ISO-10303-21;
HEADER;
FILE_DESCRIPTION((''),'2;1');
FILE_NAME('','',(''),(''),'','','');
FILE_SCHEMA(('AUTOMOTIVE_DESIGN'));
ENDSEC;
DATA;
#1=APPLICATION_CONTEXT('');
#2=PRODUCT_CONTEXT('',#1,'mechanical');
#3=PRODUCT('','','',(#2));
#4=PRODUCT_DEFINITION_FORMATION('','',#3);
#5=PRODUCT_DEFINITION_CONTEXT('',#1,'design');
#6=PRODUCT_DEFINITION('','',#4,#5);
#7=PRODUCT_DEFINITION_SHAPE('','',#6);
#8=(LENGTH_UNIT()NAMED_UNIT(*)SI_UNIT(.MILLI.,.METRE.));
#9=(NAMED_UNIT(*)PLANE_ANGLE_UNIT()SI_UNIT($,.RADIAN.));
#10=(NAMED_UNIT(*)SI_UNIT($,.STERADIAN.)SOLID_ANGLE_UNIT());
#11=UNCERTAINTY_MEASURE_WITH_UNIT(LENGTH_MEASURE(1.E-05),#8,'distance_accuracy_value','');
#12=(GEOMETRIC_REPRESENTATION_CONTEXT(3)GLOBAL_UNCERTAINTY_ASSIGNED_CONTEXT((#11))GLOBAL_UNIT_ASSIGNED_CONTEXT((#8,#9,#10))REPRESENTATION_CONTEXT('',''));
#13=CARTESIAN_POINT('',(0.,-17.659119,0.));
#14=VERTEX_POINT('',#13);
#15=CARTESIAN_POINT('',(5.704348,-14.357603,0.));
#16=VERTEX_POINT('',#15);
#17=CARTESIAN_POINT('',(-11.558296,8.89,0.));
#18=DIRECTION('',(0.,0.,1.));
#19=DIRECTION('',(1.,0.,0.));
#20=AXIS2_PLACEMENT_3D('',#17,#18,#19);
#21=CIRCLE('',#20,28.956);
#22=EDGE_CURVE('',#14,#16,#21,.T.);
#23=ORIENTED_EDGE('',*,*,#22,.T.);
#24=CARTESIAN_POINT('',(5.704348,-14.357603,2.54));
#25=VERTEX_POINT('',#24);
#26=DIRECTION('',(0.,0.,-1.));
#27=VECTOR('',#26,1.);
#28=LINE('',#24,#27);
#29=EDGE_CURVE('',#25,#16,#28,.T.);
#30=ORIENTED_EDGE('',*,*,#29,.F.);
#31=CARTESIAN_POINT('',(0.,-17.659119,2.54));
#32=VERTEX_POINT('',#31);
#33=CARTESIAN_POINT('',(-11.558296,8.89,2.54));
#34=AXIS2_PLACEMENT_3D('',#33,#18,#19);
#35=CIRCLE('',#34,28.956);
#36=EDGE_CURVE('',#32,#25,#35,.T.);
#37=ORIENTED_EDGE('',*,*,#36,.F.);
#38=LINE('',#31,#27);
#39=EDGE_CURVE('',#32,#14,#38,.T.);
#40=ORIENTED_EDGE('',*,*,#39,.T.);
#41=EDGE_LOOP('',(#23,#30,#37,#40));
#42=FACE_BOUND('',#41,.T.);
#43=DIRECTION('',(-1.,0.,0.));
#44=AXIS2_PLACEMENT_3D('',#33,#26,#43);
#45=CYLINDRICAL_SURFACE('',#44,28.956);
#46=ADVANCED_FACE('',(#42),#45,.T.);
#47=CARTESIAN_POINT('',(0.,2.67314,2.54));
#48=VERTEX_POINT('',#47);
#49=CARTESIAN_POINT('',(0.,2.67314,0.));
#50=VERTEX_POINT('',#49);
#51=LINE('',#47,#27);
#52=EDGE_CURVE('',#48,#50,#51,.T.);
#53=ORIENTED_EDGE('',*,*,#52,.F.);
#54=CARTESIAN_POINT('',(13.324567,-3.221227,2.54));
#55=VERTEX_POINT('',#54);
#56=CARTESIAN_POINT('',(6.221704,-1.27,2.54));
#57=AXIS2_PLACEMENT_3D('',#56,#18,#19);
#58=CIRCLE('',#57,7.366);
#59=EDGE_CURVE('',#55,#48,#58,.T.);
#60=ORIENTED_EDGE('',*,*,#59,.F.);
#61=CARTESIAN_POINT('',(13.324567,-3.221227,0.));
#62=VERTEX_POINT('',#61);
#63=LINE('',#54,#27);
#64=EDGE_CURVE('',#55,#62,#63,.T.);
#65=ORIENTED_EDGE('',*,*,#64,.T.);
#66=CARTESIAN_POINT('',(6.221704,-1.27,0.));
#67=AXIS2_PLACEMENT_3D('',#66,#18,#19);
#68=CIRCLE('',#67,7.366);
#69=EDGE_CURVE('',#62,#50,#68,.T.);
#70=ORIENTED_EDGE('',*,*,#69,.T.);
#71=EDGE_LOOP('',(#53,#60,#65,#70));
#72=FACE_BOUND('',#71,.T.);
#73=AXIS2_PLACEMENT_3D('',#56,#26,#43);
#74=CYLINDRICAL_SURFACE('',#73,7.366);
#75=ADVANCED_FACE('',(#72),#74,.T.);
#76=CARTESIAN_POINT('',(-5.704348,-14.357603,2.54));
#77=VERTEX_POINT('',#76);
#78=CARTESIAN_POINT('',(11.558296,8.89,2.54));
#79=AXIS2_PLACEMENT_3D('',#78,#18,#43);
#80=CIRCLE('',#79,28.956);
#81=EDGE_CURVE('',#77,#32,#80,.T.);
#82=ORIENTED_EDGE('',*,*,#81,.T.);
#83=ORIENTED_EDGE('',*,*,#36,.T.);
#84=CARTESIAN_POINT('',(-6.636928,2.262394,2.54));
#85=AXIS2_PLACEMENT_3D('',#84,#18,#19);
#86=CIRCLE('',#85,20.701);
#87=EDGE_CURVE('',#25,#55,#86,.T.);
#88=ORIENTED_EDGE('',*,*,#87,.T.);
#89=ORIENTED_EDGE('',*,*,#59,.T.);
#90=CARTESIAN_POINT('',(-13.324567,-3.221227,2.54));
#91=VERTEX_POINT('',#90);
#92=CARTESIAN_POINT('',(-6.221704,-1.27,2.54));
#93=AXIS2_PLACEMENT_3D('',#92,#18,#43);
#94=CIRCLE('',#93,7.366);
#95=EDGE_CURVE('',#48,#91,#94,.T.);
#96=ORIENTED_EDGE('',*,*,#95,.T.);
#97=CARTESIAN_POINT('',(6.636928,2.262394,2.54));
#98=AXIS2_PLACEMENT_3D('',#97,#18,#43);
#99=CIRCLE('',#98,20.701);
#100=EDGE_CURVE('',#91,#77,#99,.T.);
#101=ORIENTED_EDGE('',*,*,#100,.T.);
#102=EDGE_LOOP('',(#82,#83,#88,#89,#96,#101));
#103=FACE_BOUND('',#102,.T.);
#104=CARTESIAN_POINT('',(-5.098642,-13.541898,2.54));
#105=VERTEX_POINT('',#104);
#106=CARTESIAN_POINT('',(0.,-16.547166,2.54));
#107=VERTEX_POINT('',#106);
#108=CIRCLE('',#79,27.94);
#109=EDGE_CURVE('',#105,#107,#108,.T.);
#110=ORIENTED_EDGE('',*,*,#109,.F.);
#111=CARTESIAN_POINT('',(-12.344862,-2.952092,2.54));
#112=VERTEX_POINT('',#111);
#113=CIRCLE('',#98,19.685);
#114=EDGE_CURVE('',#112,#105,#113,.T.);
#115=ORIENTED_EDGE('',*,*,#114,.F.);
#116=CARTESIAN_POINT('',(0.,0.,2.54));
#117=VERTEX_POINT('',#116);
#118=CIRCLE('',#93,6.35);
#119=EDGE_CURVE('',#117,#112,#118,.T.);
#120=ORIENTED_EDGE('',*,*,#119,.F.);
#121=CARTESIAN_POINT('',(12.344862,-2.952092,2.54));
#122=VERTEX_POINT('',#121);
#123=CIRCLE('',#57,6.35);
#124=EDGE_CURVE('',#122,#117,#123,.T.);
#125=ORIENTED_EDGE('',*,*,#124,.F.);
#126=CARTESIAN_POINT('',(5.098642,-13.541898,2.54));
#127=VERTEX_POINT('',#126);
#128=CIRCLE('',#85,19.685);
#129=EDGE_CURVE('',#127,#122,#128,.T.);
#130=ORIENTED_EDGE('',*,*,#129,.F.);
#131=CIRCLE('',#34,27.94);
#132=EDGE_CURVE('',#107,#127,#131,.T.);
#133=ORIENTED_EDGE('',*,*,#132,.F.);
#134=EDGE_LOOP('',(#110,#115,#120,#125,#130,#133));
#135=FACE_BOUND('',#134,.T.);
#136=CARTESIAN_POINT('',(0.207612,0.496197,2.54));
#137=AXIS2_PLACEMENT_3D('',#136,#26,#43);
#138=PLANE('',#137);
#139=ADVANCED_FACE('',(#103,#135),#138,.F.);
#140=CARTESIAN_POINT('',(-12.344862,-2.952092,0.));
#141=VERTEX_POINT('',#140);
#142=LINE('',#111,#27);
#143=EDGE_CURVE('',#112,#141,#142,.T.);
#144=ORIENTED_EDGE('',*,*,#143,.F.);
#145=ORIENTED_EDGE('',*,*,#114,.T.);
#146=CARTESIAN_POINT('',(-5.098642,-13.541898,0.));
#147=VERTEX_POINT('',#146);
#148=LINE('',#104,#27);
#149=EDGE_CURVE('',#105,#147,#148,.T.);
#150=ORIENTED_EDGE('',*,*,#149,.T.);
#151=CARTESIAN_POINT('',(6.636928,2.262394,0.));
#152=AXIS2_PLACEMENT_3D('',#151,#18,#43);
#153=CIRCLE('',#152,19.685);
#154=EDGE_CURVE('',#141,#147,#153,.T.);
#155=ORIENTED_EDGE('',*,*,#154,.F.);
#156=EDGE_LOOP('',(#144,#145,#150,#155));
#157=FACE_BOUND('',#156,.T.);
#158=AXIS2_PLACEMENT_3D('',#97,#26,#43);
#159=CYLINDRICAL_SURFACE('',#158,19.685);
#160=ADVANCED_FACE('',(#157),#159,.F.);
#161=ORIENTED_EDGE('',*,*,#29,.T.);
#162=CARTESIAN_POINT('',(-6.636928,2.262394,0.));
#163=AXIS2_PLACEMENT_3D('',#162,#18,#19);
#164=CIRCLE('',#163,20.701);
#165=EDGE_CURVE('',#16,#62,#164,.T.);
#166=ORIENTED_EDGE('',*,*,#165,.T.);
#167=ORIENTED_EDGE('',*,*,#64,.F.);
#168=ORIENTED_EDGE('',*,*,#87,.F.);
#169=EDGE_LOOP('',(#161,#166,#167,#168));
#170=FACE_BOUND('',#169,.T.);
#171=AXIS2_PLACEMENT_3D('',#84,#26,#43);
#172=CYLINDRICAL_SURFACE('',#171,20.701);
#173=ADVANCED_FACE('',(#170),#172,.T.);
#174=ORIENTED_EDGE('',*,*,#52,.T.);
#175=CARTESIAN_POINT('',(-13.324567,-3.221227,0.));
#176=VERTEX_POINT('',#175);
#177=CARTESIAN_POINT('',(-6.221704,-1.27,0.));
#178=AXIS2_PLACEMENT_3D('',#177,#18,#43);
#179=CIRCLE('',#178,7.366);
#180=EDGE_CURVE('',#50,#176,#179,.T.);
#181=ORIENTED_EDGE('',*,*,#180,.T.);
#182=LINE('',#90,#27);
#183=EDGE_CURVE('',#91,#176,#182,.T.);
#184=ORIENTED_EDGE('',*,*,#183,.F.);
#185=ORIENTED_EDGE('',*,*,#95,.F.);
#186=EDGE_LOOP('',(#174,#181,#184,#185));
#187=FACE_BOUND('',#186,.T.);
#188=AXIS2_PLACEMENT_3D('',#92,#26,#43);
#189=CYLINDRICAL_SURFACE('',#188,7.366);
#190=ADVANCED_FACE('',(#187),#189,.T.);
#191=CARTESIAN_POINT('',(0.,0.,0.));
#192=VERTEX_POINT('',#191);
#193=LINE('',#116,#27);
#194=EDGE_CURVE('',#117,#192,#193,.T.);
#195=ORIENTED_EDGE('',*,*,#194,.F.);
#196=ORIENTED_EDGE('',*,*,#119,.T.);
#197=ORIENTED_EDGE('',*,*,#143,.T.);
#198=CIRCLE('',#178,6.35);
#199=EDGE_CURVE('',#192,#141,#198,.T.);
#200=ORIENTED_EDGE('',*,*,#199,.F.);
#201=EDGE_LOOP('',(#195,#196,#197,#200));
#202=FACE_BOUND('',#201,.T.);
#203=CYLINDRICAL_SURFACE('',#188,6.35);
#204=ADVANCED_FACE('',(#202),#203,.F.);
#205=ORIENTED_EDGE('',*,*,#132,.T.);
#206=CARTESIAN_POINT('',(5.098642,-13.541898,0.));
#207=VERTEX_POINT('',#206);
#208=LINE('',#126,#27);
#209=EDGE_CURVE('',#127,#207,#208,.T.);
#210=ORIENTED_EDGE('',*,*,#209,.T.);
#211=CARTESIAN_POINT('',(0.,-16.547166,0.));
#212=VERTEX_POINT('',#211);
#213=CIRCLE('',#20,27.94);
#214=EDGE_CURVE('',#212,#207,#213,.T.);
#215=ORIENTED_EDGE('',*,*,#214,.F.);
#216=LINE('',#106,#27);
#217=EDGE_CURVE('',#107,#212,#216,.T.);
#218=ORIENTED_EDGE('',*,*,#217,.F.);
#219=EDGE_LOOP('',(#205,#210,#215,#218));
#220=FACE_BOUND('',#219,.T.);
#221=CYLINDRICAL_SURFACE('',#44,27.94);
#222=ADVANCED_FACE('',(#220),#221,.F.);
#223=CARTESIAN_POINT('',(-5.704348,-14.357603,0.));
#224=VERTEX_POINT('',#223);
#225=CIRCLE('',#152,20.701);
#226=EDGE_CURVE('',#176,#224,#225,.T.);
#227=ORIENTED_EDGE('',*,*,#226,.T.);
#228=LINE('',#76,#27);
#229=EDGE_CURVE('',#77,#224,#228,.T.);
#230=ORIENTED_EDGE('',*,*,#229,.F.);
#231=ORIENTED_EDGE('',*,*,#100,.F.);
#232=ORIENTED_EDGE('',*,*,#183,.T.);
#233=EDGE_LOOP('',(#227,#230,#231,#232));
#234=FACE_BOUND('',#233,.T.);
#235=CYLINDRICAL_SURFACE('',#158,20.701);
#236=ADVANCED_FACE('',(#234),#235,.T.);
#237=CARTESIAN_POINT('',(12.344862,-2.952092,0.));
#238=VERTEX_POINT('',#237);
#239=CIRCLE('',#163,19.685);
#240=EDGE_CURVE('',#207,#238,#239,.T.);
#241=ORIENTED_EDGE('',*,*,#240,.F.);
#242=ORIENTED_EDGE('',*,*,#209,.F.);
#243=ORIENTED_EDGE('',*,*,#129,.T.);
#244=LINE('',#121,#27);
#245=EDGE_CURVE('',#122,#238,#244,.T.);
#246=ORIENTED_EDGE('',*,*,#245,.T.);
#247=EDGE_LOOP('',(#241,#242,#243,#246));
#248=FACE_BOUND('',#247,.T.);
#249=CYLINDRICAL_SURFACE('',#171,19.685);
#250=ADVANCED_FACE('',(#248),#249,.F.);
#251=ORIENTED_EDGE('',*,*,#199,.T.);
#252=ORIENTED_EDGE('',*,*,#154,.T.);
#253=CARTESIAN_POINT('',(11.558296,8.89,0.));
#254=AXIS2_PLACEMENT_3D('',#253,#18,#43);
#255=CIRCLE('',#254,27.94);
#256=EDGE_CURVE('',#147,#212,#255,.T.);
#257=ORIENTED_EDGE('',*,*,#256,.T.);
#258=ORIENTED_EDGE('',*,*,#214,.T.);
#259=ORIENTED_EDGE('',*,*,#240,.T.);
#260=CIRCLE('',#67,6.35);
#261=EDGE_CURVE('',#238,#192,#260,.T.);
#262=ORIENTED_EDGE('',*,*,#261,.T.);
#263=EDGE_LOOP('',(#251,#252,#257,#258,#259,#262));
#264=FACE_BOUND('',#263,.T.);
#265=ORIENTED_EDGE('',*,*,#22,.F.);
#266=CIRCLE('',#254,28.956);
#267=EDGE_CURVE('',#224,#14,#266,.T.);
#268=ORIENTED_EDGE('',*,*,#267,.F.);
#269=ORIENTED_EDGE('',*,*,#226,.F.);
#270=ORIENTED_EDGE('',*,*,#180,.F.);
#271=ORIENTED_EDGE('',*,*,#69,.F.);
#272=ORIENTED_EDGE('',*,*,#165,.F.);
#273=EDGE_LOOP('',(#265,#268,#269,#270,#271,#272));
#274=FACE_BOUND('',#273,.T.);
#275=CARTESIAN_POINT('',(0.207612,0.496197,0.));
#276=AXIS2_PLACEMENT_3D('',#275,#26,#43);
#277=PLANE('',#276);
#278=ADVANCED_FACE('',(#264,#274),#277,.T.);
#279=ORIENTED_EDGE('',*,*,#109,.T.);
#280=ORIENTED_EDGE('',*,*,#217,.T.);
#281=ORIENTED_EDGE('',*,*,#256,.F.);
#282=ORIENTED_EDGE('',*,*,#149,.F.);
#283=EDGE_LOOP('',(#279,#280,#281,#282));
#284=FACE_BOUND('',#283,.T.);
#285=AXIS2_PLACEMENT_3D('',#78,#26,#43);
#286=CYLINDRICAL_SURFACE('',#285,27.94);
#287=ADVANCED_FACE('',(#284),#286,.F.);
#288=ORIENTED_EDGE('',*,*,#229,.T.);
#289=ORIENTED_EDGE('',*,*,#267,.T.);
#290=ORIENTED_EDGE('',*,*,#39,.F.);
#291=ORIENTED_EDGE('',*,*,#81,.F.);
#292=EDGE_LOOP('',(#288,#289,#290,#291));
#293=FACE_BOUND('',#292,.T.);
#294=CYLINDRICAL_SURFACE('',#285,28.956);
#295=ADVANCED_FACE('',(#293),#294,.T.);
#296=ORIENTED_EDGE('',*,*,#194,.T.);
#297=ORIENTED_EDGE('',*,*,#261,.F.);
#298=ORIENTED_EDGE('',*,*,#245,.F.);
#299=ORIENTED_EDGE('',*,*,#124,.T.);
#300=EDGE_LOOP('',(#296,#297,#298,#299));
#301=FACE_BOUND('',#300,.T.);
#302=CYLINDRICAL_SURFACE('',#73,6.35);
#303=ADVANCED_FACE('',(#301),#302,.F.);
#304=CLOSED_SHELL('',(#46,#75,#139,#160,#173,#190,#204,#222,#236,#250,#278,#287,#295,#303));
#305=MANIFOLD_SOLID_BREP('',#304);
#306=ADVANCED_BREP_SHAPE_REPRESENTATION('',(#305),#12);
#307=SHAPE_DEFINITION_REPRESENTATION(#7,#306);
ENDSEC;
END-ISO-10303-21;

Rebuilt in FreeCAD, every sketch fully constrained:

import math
import FreeCAD as App
import Part
import Sketcher
from FreeCAD import Vector
Q = App.Units.Quantity

doc = App.newDocument("Part")
body = doc.addObject("PartDesign::Body", "Body")

# Sketch on XY plane
sketch1 = doc.addObject("Sketcher::SketchObject", "Sketch")
body.addObject(sketch1)
sketch1.AttachmentSupport = (doc.XY_Plane, [""])
sketch1.MapMode = "FlatFace"
sketch1.addGeometry(Part.ArcOfCircle(Part.Circle(Vector(-6.221704, -1.27, 0), Vector(0, 0, 1), 7.366), math.radians(32.365369), math.radians(195.360799)), False)
sketch1.addGeometry(Part.ArcOfCircle(Part.Circle(Vector(6.636928, 2.262394, 0), Vector(0, 0, 1), 20.701), math.radians(-164.639201), math.radians(-126.595951)), False)
sketch1.addGeometry(Part.ArcOfCircle(Part.Circle(Vector(11.558296, 8.89, 0), Vector(0, 0, 1), 28.956), math.radians(-126.595951), math.radians(-113.526149)), False)
sketch1.addGeometry(Part.ArcOfCircle(Part.Circle(Vector(-11.558296, 8.89, 0), Vector(0, 0, 1), 28.956), math.radians(-66.473851), math.radians(-53.404049)), False)
sketch1.addGeometry(Part.ArcOfCircle(Part.Circle(Vector(-6.636928, 2.262394, 0), Vector(0, 0, 1), 20.701), math.radians(-53.404049), math.radians(-15.360799)), False)
sketch1.addGeometry(Part.ArcOfCircle(Part.Circle(Vector(6.221704, -1.27, 0), Vector(0, 0, 1), 7.366), math.radians(-15.360799), math.radians(147.634631)), False)
sketch1.addGeometry(Part.ArcOfCircle(Part.Circle(Vector(-6.636928, 2.262394, 0), Vector(0, 0, 1), 19.685), math.radians(-53.404049), math.radians(-15.360799)), False)
sketch1.addGeometry(Part.ArcOfCircle(Part.Circle(Vector(-11.558296, 8.89, 0), Vector(0, 0, 1), 27.94), math.radians(-65.56361), math.radians(-53.404049)), False)
sketch1.addGeometry(Part.ArcOfCircle(Part.Circle(Vector(11.558296, 8.89, 0), Vector(0, 0, 1), 27.94), math.radians(-126.595951), math.radians(-114.43639)), False)
sketch1.addGeometry(Part.ArcOfCircle(Part.Circle(Vector(6.636928, 2.262394, 0), Vector(0, 0, 1), 19.685), math.radians(-164.639201), math.radians(-126.595951)), False)
sketch1.addGeometry(Part.ArcOfCircle(Part.Circle(Vector(-6.221704, -1.27, 0), Vector(0, 0, 1), 6.35), math.radians(11.536959), math.radians(195.360799)), False)
sketch1.addGeometry(Part.ArcOfCircle(Part.Circle(Vector(6.221704, -1.27, 0), Vector(0, 0, 1), 6.35), math.radians(-15.360799), math.radians(168.463041)), False)
sketch1.addConstraint(Sketcher.Constraint("Tangent", 0, 2, 1, 1))
sketch1.addConstraint(Sketcher.Constraint("Tangent", 1, 2, 2, 1))
sketch1.addConstraint(Sketcher.Constraint("Coincident", 2, 2, 3, 1))
sketch1.addConstraint(Sketcher.Constraint("Tangent", 3, 2, 4, 1))
sketch1.addConstraint(Sketcher.Constraint("Tangent", 4, 2, 5, 1))
sketch1.addConstraint(Sketcher.Constraint("Coincident", 5, 2, 0, 1))
sketch1.addConstraint(Sketcher.Constraint("Tangent", 6, 1, 7, 2))
sketch1.addConstraint(Sketcher.Constraint("Coincident", 7, 1, 8, 2))
sketch1.addConstraint(Sketcher.Constraint("Tangent", 8, 1, 9, 2))
sketch1.addConstraint(Sketcher.Constraint("Tangent", 9, 1, 10, 2))
sketch1.addConstraint(Sketcher.Constraint("Coincident", 10, 1, 11, 2))
sketch1.addConstraint(Sketcher.Constraint("Tangent", 11, 1, 6, 2))
sketch1.addConstraint(Sketcher.Constraint("Coincident", 10, 1, -1, 1))
sketch1.addConstraint(Sketcher.Constraint("Coincident", 6, 3, 4, 3))
sketch1.addConstraint(Sketcher.Constraint("Coincident", 7, 3, 3, 3))
sketch1.addConstraint(Sketcher.Constraint("Coincident", 8, 3, 2, 3))
sketch1.addConstraint(Sketcher.Constraint("Coincident", 9, 3, 1, 3))
sketch1.addConstraint(Sketcher.Constraint("Coincident", 10, 3, 0, 3))
sketch1.addConstraint(Sketcher.Constraint("Coincident", 11, 3, 5, 3))
sketch1.addConstraint(Sketcher.Constraint("Equal", 2, 3))
sketch1.addConstraint(Sketcher.Constraint("Equal", 1, 4))
sketch1.addConstraint(Sketcher.Constraint("Equal", 0, 5))
sketch1.addConstraint(Sketcher.Constraint("Equal", 7, 8))
sketch1.addConstraint(Sketcher.Constraint("Symmetric", 2, 3, 3, 3, -2))
sketch1.addConstraint(Sketcher.Constraint("PointOnObject", 5, 2, -2))
sketch1.addConstraint(Sketcher.Constraint("Radius", 7, Q("1.1 in")))
sketch1.addConstraint(Sketcher.Constraint("Radius", 0, Q("0.29 in")))
sketch1.addConstraint(Sketcher.Constraint("Radius", 2, Q("1.14 in")))
sketch1.addConstraint(Sketcher.Constraint("Radius", 1, Q("0.815 in")))
sketch1.addConstraint(Sketcher.Constraint("DistanceX", 0, 3, 2, 3, Q("0.7 in")))
sketch1.addConstraint(Sketcher.Constraint("DistanceY", 0, 3, 2, 3, Q("0.4 in")))
sketch1.addConstraint(Sketcher.Constraint("DistanceY", 0, 3, -1, 1, Q("0.05 in")))
pad1 = doc.addObject("PartDesign::Pad", "Pad")
body.addObject(pad1)
pad1.Profile = sketch1
pad1.Length = Q("0.1 in")

doc.recompute()
